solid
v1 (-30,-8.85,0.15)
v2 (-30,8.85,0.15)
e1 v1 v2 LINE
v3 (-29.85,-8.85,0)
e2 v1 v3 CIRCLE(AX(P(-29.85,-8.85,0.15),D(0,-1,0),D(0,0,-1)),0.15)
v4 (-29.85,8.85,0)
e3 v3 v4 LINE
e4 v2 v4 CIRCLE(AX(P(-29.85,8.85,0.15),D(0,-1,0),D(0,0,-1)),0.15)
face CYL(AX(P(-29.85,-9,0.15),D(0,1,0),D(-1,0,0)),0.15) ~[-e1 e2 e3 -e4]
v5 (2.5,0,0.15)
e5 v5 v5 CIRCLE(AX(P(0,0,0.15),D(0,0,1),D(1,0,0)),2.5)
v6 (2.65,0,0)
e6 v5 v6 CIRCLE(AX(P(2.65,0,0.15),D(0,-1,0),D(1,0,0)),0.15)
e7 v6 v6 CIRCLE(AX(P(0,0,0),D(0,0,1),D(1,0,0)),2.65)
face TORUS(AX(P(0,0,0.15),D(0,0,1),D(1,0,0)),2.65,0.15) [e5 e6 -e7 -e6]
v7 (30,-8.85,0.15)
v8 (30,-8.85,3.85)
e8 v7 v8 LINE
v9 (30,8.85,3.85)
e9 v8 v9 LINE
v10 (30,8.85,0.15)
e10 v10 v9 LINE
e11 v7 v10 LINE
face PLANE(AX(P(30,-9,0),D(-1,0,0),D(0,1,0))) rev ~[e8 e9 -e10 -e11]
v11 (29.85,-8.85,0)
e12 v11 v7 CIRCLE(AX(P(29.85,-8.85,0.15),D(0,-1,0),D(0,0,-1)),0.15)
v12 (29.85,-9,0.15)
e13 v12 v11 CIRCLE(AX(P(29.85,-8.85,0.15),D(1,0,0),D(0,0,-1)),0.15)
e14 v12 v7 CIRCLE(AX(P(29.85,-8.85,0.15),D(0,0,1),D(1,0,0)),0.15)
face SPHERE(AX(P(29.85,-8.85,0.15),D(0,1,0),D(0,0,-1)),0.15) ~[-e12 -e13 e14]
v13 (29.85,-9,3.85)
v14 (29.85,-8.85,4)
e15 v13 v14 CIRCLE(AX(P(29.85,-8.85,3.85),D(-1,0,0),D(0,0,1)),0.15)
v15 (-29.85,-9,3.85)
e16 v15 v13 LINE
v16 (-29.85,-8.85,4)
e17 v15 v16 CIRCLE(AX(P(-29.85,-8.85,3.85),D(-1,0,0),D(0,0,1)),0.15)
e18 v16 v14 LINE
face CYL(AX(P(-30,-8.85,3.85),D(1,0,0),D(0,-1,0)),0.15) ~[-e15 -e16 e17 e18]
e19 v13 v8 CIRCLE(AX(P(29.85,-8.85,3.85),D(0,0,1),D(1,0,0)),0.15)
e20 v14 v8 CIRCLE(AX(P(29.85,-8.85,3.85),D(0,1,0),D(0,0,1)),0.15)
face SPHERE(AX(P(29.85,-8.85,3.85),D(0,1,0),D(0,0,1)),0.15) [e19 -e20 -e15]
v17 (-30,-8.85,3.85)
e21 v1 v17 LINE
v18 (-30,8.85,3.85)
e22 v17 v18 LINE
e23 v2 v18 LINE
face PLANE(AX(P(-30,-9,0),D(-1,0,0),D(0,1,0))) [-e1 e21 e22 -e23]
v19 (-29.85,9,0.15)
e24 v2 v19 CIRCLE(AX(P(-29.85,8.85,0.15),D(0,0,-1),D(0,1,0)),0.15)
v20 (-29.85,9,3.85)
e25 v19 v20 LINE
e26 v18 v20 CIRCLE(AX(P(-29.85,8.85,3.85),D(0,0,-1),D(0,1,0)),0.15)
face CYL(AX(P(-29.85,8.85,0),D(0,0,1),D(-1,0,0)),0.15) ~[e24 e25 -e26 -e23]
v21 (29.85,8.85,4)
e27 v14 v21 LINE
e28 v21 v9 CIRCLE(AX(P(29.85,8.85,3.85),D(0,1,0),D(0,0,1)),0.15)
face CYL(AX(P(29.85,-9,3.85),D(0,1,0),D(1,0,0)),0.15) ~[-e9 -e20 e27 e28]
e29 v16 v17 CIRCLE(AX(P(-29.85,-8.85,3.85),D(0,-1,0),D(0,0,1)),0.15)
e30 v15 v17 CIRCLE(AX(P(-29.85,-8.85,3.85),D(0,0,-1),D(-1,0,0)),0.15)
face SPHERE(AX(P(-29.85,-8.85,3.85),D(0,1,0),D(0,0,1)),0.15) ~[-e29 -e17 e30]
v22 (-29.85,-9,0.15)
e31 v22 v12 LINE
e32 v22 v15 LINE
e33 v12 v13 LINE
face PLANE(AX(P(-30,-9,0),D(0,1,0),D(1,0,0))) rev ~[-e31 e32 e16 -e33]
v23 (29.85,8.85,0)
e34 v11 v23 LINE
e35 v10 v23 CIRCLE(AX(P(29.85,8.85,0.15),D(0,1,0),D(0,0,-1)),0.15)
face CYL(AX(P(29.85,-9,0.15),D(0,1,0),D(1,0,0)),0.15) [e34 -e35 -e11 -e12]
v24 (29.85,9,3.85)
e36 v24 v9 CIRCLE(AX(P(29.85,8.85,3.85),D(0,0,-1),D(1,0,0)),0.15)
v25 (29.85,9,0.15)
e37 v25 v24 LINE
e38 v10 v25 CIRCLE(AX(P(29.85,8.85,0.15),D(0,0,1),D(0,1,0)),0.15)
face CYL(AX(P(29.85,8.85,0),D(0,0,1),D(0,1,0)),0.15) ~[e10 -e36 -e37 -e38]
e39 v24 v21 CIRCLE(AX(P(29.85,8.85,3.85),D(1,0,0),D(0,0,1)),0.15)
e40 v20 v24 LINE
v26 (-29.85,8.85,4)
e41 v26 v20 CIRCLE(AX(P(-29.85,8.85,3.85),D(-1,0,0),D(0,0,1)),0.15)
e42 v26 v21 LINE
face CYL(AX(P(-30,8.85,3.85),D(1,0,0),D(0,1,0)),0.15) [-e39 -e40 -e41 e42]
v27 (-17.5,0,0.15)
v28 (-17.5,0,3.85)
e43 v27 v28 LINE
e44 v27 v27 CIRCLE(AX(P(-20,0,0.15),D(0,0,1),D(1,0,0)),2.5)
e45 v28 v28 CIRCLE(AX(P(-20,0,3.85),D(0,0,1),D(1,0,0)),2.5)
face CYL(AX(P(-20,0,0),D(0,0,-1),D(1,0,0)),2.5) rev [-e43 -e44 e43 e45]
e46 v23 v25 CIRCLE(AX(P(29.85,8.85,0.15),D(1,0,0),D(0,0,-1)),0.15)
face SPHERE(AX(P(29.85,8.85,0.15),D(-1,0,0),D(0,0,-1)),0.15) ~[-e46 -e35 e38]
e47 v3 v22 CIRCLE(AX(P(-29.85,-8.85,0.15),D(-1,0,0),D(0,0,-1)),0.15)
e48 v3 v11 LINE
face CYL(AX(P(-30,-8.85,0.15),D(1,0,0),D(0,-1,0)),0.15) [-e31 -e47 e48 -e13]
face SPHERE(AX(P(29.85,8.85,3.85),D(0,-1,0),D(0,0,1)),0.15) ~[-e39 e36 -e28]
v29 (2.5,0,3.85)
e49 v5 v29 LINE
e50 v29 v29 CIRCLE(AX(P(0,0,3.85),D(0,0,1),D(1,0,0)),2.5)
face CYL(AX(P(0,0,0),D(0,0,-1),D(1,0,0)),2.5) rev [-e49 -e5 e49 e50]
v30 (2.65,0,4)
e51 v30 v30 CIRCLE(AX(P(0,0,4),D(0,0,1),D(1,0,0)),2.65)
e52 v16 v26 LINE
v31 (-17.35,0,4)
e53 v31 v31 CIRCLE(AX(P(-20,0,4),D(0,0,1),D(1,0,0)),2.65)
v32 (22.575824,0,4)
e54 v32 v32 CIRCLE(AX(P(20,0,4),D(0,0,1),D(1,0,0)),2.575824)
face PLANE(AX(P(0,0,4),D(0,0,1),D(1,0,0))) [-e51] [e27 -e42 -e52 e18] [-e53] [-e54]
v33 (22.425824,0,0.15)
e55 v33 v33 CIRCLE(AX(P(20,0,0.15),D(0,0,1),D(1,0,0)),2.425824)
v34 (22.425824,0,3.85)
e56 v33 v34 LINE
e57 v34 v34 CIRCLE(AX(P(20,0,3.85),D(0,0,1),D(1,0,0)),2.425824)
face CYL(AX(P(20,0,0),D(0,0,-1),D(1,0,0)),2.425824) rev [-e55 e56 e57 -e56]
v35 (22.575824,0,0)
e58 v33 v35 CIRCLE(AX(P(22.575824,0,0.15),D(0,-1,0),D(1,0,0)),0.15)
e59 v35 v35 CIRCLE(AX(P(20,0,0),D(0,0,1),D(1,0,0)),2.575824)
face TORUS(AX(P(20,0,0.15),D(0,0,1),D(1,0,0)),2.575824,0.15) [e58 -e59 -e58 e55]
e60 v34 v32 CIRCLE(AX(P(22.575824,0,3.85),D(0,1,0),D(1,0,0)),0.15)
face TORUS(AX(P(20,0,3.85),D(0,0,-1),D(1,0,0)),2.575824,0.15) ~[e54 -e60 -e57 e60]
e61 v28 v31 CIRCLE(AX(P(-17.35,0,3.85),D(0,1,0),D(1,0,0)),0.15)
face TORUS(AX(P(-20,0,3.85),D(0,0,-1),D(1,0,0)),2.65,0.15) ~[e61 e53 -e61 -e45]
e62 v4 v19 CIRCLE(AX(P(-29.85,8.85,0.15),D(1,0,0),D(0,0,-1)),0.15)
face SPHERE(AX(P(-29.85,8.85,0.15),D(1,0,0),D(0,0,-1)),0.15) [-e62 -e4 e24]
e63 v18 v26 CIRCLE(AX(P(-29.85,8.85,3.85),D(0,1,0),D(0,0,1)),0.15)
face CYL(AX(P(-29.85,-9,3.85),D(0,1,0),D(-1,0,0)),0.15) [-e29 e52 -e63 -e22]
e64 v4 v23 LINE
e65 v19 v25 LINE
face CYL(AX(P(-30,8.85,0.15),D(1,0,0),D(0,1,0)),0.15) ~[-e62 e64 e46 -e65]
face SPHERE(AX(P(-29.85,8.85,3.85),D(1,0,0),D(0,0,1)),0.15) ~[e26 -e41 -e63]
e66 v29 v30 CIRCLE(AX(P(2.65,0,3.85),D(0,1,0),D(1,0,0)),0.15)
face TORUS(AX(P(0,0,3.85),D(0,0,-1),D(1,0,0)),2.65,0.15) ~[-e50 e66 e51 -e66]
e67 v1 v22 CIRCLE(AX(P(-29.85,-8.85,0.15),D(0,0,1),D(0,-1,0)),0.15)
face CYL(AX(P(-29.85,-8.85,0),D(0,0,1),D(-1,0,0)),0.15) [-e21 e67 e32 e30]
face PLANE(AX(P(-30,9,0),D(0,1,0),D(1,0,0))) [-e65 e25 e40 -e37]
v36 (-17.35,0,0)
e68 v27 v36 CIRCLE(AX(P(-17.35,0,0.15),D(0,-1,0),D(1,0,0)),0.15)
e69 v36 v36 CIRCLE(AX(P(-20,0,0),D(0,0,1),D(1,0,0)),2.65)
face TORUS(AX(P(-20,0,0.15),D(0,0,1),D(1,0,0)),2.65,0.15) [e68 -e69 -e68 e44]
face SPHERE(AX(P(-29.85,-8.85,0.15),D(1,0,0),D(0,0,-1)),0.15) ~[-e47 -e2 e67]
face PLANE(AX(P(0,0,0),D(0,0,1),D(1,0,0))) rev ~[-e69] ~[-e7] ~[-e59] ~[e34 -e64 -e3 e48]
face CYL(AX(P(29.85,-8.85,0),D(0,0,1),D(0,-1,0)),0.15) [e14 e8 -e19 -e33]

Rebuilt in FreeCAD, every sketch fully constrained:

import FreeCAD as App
import Part
import Sketcher
from FreeCAD import Vector
Q = App.Units.Quantity

doc = App.newDocument("Part")
body = doc.addObject("PartDesign::Body", "Body")

# Sketch on XY plane
sketch1 = doc.addObject("Sketcher::SketchObject", "Sketch")
body.addObject(sketch1)
sketch1.AttachmentSupport = (doc.XY_Plane, [""])
sketch1.MapMode = "FlatFace"
sketch1.addGeometry([
    Part.LineSegment(Vector(-30, 9, 0), Vector(-30, -9, 0)),  # 0
    Part.LineSegment(Vector(-30, -9, 0), Vector(30, -9, 0)),  # 1
    Part.LineSegment(Vector(30, -9, 0), Vector(30, 9, 0)),  # 2
    Part.LineSegment(Vector(30, 9, 0), Vector(-30, 9, 0)),  # 3
    Part.Circle(Vector(-20, 0, 0), Vector(0, 0, 1), 2.5),  # 4
    Part.Circle(Vector(0, 0, 0), Vector(0, 0, 1), 2.5),  # 5
    Part.Circle(Vector(20, 0, 0), Vector(0, 0, 1), 2.4),  # 6
], False)
sketch1.addConstraint([
    Sketcher.Constraint("Coincident", 0, 2, 1, 1),
    Sketcher.Constraint("Coincident", 1, 2, 2, 1),
    Sketcher.Constraint("Coincident", 2, 2, 3, 1),
    Sketcher.Constraint("Coincident", 3, 2, 0, 1),
    Sketcher.Constraint("Vertical", 0),
    Sketcher.Constraint("Horizontal", 1),
    Sketcher.Constraint("Vertical", 2),
    Sketcher.Constraint("Horizontal", 3),
    Sketcher.Constraint("Coincident", 5, 3, -1, 1),
    Sketcher.Constraint("Equal", 4, 5),
    Sketcher.Constraint("Symmetric", 4, 3, 6, 3, -1, 1),
    Sketcher.Constraint("Symmetric", 0, 2, 2, 2, -1, 1),
    Sketcher.Constraint("PointOnObject", 4, 3, -1),
    Sketcher.Constraint("Diameter", 4, Q("5 mm")),
    Sketcher.Constraint("DistanceX", 1, 1, 1, 2, Q("60 mm")),
    Sketcher.Constraint("DistanceY", 0, 2, 0, 1, Q("18 mm")),
    Sketcher.Constraint("DistanceX", 4, 3, -1, 1, Q("20 mm")),
    Sketcher.Constraint("Diameter", 6, Q("4.851648 mm")),
])
pad1 = doc.addObject("PartDesign::Pad", "Pad")
body.addObject(pad1)
pad1.Profile = sketch1
pad1.Length = 4
doc.recompute()

fillet = doc.addObject("PartDesign::Fillet", "Fillet")
body.addObject(fillet)
fillet.Base = (pad1, ["Edge1"])
fillet.UseAllEdges = True
fillet.Radius = 0.15

doc.recompute()
